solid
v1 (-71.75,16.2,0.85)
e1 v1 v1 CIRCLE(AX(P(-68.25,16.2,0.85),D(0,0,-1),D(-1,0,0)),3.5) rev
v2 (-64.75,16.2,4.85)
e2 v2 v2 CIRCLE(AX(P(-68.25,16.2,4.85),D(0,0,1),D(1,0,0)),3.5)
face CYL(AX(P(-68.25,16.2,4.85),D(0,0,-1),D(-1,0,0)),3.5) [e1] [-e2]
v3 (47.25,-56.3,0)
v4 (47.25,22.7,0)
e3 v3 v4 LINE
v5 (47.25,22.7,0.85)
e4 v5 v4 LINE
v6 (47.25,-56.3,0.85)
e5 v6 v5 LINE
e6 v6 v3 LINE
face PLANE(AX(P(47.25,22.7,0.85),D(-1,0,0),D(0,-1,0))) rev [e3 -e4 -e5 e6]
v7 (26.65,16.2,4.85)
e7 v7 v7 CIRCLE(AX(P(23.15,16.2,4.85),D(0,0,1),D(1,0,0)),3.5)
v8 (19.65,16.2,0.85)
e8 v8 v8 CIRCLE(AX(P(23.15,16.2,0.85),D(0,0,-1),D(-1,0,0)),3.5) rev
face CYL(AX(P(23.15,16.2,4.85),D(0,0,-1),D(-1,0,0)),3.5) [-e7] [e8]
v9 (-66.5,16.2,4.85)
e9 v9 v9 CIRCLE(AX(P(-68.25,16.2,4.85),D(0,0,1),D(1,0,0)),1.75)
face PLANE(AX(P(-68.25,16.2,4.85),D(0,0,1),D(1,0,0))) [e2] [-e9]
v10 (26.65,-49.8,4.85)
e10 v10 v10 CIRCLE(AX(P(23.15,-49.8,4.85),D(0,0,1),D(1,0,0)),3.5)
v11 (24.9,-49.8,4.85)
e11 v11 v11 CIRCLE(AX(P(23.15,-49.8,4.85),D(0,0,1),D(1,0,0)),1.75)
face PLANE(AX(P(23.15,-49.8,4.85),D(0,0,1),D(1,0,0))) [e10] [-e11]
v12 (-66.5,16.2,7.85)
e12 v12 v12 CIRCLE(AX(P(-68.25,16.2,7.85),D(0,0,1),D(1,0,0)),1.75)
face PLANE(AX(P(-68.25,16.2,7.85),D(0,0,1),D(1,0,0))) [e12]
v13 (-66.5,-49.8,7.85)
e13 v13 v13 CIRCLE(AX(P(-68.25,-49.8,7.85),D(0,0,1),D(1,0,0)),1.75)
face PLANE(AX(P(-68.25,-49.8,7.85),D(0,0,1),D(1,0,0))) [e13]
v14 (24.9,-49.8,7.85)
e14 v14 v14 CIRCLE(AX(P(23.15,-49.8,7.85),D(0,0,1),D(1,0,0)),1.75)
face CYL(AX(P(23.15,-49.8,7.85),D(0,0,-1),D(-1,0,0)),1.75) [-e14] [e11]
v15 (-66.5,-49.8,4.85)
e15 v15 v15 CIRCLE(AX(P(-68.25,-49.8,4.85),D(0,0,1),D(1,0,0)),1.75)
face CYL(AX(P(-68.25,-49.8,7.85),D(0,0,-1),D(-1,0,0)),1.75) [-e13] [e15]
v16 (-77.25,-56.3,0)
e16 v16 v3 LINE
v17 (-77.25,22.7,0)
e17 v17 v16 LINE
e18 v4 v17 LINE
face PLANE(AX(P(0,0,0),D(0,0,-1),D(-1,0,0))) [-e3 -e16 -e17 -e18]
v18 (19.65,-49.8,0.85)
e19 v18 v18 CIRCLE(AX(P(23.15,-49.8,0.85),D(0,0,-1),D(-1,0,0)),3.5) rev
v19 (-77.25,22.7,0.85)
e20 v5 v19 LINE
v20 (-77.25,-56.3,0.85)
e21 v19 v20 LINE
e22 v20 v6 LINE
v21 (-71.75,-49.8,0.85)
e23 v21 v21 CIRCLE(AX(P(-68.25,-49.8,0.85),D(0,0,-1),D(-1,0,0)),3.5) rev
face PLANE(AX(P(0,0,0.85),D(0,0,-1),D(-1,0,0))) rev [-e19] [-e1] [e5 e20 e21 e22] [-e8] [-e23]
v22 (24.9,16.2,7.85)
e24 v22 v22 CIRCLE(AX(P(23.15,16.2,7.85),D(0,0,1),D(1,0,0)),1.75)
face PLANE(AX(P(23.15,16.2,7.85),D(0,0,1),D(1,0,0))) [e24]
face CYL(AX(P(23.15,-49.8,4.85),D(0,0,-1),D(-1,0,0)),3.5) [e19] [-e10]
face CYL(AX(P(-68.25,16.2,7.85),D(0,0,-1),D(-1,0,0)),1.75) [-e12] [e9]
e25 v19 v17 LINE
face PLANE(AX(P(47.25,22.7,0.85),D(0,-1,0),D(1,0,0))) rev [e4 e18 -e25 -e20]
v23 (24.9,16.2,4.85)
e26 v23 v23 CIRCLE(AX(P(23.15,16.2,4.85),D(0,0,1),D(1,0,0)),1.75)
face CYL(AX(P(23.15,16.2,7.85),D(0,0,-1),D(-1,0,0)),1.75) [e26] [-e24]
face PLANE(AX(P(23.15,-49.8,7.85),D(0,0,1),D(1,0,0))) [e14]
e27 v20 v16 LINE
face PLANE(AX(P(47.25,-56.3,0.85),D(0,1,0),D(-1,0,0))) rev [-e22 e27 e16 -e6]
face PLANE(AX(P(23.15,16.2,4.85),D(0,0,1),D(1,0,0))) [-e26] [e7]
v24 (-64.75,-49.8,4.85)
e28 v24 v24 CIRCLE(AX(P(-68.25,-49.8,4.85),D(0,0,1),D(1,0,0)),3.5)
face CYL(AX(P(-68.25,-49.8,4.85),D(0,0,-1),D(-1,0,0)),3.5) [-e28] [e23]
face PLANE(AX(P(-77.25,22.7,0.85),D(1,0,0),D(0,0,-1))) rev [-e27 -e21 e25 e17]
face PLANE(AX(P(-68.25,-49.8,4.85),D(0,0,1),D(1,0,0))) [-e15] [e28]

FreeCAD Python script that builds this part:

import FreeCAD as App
import Part
import Sketcher

V = App.Vector
Q = App.Units.Quantity


def add_polygon(sketch, points):
    """Adds a closed chain of lines whose ends are joined by coincident constraints."""
    first, n = sketch.GeometryCount, len(points)
    for a, b in zip(points, points[1:] + points[:1]):
        sketch.addGeometry(Part.LineSegment(App.Vector(*a, 0), App.Vector(*b, 0)), False)
    for i in range(n):
        sketch.addConstraint(Sketcher.Constraint("Coincident", first + i, 2, first + (i + 1) % n, 1))

doc = App.newDocument("Part")
body = doc.addObject("PartDesign::Body", "Body")

# Sketch on XY plane
sketch1 = doc.addObject("Sketcher::SketchObject", "Sketch")
body.addObject(sketch1)
sketch1.AttachmentSupport = (doc.XY_Plane, [""])
sketch1.MapMode = "FlatFace"
add_polygon(sketch1, [(-77.25, 22.7), (-77.25, -56.3), (47.25, -56.3), (47.25, 22.7)])  # lines 0-3
sketch1.addConstraint(Sketcher.Constraint("Vertical", 0))
sketch1.addConstraint(Sketcher.Constraint("Horizontal", 1))
sketch1.addConstraint(Sketcher.Constraint("Vertical", 2))
sketch1.addConstraint(Sketcher.Constraint("Horizontal", 3))
sketch1.addConstraint(Sketcher.Constraint("DistanceY", 0, 2, 0, 1, Q("79 mm")))
sketch1.addConstraint(Sketcher.Constraint("DistanceX", 1, 1, 1, 2, Q("124.5 mm")))
sketch1.addConstraint(Sketcher.Constraint("DistanceY", 0, 2, -1, 1, Q("56.3 mm")))
sketch1.addConstraint(Sketcher.Constraint("DistanceX", 0, 2, -1, 1, Q("77.25 mm")))
pad1 = doc.addObject("PartDesign::Pad", "Pad")
body.addObject(pad1)
pad1.Profile = sketch1
pad1.Length = 0.85

# Sketch on XY plane
sketch2 = doc.addObject("Sketcher::SketchObject", "Sketch001")
body.addObject(sketch2)
sketch2.AttachmentSupport = (doc.XY_Plane, [""])
sketch2.MapMode = "FlatFace"
sketch2.AttachmentOffset = App.Placement(V(0, 0, 0.85), App.Rotation())
sketch2.addGeometry(Part.Circle(V(-68.25, 16.2, 0), V(0, 0, 1), 3.5), False)
sketch2.addGeometry(Part.Circle(V(23.15, 16.2, 0), V(0, 0, 1), 3.5), False)
sketch2.addGeometry(Part.Circle(V(23.15, -49.8, 0), V(0, 0, 1), 3.5), False)
sketch2.addGeometry(Part.Circle(V(-68.25, -49.8, 0), V(0, 0, 1), 3.5), False)
sketch2.addConstraint(Sketcher.Constraint("Equal", 0, 1))
sketch2.addConstraint(Sketcher.Constraint("Equal", 1, 2))
sketch2.addConstraint(Sketcher.Constraint("Equal", 2, 3))
sketch2.addConstraint(Sketcher.Constraint("Horizontal", 0, 3, 1, 3))
sketch2.addConstraint(Sketcher.Constraint("Horizontal", 2, 3, 3, 3))
sketch2.addConstraint(Sketcher.Constraint("Vertical", 1, 3, 2, 3))
sketch2.addConstraint(Sketcher.Constraint("Vertical", 0, 3, 3, 3))
sketch2.addConstraint(Sketcher.Constraint("Diameter", 0, Q("7 mm")))
sketch2.addConstraint(Sketcher.Constraint("DistanceY", 2, 3, 1, 3, Q("66 mm")))
sketch2.addConstraint(Sketcher.Constraint("DistanceY", -1, 1, 0, 3, Q("16.2 mm")))
sketch2.addConstraint(Sketcher.Constraint("DistanceX", 0, 3, 1, 3, Q("91.4 mm")))
sketch2.addConstraint(Sketcher.Constraint("DistanceX", 0, 3, -1, 1, Q("68.25 mm")))
pad2 = doc.addObject("PartDesign::Pad", "Pad001")
body.addObject(pad2)
pad2.Profile = sketch2
pad2.Length = 4

# Sketch on XY plane
sketch3 = doc.addObject("Sketcher::SketchObject", "Sketch002")
body.addObject(sketch3)
sketch3.AttachmentSupport = (doc.XY_Plane, [""])
sketch3.MapMode = "FlatFace"
sketch3.AttachmentOffset = App.Placement(V(0, 0, 4.85), App.Rotation())
sketch3.addGeometry(Part.Circle(V(-68.25, 16.2, 0), V(0, 0, 1), 1.75), False)
sketch3.addGeometry(Part.Circle(V(23.15, 16.2, 0), V(0, 0, 1), 1.75), False)
sketch3.addGeometry(Part.Circle(V(23.15, -49.8, 0), V(0, 0, 1), 1.75), False)
sketch3.addGeometry(Part.Circle(V(-68.25, -49.8, 0), V(0, 0, 1), 1.75), False)
sketch3.addConstraint(Sketcher.Constraint("Equal", 0, 1))
sketch3.addConstraint(Sketcher.Constraint("Equal", 1, 2))
sketch3.addConstraint(Sketcher.Constraint("Equal", 2, 3))
sketch3.addConstraint(Sketcher.Constraint("Horizontal", 0, 3, 1, 3))
sketch3.addConstraint(Sketcher.Constraint("Horizontal", 2, 3, 3, 3))
sketch3.addConstraint(Sketcher.Constraint("Vertical", 1, 3, 2, 3))
sketch3.addConstraint(Sketcher.Constraint("Vertical", 0, 3, 3, 3))
sketch3.addConstraint(Sketcher.Constraint("Diameter", 0, Q("3.5 mm")))
sketch3.addConstraint(Sketcher.Constraint("DistanceY", 2, 3, 1, 3, Q("66 mm")))
sketch3.addConstraint(Sketcher.Constraint("DistanceY", -1, 1, 0, 3, Q("16.2 mm")))
sketch3.addConstraint(Sketcher.Constraint("DistanceX", 0, 3, 1, 3, Q("91.4 mm")))
sketch3.addConstraint(Sketcher.Constraint("DistanceX", 0, 3, -1, 1, Q("68.25 mm")))
pad3 = doc.addObject("PartDesign::Pad", "Pad002")
body.addObject(pad3)
pad3.Profile = sketch3
pad3.Length = 3

doc.recompute()
